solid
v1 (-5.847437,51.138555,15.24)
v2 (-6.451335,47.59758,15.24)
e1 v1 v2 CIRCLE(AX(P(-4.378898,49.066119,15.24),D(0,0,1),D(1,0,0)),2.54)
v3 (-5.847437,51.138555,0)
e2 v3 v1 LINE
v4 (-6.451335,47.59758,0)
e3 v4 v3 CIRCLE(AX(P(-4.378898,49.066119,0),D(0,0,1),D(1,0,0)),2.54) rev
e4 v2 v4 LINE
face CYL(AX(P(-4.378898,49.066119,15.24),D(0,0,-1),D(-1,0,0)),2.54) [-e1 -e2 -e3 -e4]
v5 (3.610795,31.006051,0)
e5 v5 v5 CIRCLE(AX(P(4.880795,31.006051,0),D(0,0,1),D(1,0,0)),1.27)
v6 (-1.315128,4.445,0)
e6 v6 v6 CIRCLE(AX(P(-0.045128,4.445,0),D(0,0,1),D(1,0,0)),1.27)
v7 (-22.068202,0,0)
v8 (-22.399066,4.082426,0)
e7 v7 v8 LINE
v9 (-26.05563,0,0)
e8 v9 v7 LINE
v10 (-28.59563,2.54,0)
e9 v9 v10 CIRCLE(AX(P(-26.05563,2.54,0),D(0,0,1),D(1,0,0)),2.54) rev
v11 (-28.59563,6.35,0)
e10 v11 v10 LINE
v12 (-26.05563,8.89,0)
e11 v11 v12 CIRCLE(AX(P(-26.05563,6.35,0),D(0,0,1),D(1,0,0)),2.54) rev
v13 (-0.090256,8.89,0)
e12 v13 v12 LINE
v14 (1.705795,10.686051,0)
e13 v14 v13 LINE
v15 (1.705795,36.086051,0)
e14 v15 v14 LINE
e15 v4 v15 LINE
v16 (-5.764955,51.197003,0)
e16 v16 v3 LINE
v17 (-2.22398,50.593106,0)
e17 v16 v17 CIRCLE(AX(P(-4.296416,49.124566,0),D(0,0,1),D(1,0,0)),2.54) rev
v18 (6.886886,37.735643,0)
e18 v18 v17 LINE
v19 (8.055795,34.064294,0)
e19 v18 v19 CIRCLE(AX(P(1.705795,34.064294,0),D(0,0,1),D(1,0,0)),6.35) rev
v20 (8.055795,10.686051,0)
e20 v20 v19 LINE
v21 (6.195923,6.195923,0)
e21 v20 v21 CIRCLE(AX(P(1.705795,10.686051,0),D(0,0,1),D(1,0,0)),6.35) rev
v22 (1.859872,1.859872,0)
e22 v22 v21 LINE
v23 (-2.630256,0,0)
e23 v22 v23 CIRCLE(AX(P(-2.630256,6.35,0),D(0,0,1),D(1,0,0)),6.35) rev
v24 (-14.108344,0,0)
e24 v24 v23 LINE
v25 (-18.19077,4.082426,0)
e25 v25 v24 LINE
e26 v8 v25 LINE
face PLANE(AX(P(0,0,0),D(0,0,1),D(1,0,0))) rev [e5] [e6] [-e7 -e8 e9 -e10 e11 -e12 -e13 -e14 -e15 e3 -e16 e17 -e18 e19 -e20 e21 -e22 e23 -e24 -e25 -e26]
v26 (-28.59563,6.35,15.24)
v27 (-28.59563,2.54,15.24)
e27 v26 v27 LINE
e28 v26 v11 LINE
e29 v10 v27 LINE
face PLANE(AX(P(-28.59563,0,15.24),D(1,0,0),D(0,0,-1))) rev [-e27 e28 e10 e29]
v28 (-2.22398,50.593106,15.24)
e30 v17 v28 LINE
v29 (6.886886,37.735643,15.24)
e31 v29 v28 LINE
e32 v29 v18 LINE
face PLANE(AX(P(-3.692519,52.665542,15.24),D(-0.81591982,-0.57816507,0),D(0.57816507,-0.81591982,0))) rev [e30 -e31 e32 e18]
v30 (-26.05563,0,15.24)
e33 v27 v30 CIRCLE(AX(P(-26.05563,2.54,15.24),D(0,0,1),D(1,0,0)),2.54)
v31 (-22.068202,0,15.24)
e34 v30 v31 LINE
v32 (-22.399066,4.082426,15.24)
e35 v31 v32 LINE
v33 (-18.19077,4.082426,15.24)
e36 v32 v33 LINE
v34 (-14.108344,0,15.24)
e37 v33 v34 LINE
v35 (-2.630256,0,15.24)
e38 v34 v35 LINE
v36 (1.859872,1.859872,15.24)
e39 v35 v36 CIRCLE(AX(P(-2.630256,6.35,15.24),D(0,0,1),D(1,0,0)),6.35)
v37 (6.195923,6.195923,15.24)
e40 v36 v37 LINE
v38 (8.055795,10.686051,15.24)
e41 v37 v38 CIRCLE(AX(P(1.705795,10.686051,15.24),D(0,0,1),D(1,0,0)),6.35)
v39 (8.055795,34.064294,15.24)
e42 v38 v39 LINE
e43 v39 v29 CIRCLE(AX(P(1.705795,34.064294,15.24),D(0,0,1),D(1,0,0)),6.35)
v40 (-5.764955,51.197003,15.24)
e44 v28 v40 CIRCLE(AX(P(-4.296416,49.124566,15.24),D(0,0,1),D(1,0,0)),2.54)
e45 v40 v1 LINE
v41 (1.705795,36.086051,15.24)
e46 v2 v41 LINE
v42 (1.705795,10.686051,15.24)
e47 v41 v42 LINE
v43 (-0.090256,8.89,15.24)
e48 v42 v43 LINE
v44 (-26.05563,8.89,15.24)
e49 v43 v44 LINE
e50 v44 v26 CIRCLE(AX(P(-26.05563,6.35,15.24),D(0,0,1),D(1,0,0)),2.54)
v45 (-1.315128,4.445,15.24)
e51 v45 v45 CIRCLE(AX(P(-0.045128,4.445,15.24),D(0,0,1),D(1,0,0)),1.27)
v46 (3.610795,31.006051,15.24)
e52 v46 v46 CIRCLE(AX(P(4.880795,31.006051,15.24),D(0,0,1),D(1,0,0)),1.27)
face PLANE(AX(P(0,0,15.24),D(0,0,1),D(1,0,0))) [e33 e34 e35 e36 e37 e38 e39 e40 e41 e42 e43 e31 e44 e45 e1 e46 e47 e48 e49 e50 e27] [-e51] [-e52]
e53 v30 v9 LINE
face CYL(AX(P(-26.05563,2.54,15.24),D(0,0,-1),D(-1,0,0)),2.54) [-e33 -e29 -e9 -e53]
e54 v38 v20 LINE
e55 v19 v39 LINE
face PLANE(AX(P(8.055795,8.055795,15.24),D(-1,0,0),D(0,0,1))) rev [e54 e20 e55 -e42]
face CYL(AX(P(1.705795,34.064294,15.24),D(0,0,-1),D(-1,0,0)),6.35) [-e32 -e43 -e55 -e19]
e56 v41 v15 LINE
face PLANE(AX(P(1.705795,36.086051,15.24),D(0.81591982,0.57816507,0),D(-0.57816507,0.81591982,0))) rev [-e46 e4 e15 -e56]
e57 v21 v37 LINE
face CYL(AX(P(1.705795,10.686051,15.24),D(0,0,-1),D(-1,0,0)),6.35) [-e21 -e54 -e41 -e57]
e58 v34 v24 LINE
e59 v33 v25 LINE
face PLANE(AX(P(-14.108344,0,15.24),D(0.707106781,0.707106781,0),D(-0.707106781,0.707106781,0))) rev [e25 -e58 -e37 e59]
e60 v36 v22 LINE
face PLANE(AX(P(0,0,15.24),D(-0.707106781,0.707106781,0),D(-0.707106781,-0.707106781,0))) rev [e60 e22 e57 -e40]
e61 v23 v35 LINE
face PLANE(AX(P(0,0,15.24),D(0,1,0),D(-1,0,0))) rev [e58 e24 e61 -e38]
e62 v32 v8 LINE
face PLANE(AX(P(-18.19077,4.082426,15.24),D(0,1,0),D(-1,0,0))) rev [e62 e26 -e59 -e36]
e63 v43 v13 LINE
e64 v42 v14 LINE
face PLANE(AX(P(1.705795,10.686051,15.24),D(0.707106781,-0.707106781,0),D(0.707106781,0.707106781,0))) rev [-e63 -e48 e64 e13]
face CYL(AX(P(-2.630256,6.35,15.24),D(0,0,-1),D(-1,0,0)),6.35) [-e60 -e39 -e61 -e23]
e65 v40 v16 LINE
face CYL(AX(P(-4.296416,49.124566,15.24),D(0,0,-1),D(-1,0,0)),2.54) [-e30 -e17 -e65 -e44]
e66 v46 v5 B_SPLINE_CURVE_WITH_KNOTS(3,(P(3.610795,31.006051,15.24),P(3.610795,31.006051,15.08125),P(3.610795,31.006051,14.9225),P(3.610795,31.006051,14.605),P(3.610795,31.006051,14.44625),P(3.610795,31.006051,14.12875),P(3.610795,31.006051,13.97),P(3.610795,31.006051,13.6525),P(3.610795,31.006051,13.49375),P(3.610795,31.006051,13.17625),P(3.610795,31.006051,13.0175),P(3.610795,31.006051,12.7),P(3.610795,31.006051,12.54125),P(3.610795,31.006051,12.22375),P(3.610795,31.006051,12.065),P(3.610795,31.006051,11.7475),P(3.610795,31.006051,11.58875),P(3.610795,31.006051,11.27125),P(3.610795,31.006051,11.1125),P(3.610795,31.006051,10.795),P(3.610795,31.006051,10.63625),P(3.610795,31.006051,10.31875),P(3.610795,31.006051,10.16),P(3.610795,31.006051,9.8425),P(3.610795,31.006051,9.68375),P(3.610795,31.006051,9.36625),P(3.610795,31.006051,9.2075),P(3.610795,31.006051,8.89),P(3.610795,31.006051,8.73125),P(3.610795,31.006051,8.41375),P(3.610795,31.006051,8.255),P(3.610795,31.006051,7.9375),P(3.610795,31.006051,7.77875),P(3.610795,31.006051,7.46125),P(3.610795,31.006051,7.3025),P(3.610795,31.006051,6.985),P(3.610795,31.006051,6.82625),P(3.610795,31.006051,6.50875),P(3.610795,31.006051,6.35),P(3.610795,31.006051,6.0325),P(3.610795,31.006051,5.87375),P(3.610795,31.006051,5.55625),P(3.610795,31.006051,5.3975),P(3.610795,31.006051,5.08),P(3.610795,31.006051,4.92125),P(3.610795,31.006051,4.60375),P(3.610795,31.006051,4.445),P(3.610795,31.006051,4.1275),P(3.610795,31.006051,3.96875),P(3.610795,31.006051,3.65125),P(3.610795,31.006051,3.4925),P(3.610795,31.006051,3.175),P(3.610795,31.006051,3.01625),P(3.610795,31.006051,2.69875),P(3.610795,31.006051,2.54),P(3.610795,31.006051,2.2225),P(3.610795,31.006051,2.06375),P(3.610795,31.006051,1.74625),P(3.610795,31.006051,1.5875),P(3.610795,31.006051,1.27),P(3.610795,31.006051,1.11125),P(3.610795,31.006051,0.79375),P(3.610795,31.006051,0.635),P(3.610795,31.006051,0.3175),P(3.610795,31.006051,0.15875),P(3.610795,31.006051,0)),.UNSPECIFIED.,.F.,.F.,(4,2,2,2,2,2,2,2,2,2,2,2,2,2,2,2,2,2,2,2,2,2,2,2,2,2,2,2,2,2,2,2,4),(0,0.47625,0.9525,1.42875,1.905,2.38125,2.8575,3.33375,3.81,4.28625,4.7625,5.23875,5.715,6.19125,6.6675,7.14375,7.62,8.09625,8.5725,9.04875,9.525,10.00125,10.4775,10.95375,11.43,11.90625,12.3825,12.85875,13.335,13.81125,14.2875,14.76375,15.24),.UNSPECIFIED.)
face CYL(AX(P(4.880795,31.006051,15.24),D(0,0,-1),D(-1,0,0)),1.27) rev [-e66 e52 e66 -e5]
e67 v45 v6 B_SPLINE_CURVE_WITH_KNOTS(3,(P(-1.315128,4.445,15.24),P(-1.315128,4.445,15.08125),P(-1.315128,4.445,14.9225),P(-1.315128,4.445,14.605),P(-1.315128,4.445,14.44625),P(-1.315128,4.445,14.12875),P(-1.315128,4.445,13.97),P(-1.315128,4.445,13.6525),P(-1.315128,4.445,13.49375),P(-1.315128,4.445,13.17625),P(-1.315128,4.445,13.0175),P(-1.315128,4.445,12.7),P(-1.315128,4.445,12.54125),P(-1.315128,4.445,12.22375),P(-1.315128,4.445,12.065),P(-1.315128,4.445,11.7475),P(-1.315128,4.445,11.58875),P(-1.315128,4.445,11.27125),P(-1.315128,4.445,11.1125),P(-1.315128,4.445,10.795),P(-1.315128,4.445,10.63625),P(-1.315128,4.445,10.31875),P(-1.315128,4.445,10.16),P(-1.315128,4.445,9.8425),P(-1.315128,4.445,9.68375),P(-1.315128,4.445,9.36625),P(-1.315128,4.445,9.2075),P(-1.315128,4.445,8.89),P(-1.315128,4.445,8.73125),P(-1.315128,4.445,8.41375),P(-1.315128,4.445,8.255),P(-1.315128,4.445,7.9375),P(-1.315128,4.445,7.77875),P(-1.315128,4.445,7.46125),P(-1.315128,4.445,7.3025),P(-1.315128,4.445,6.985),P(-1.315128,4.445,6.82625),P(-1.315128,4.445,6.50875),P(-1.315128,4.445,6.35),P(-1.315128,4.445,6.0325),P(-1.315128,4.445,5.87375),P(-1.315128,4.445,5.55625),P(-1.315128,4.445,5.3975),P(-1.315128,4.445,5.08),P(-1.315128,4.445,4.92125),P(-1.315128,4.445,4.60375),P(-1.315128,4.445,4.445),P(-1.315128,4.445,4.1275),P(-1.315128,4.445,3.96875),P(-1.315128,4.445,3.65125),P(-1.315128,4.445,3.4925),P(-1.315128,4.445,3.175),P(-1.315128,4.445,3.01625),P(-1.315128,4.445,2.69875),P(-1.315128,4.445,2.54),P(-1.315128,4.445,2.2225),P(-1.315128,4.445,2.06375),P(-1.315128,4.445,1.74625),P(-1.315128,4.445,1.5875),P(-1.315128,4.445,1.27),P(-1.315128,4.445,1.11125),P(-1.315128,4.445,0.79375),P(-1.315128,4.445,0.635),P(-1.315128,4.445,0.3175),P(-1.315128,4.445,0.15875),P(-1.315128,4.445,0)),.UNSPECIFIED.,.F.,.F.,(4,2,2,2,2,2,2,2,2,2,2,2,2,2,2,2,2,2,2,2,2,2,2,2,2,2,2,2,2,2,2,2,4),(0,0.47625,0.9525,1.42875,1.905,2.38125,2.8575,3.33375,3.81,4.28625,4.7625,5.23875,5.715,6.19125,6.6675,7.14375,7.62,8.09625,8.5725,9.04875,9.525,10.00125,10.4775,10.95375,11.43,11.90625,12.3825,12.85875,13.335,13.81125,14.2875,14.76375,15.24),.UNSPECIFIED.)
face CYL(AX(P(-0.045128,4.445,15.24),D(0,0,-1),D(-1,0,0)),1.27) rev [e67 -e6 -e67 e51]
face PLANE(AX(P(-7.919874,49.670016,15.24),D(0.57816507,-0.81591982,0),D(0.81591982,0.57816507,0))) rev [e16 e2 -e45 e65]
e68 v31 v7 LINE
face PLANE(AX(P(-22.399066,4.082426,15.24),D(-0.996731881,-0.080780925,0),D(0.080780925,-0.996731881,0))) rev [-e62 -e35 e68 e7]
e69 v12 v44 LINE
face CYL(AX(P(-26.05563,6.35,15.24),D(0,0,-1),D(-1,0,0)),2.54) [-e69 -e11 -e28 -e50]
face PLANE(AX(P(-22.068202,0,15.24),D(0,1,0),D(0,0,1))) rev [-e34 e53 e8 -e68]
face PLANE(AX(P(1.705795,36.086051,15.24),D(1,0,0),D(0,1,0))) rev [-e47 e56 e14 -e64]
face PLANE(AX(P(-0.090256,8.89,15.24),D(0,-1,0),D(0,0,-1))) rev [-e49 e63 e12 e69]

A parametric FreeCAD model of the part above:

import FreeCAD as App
import Part
import Sketcher
Q = App.Units.Quantity


def edges_at(feature, points):
    """Names of the edges that pass closest to the given points."""
    edges = feature.Shape.Edges
    near = lambda p: min(range(len(edges)), key=lambda i: edges[i].distToShape(Part.Vertex(*p))[0])
    return sorted({f"Edge{near(p) + 1}" for p in points})


def add_polygon(sketch, points):
    """Adds a closed chain of lines whose ends are joined by coincident constraints."""
    first, n = sketch.GeometryCount, len(points)
    for a, b in zip(points, points[1:] + points[:1]):
        sketch.addGeometry(Part.LineSegment(App.Vector(*a, 0), App.Vector(*b, 0)), False)
    for i in range(n):
        sketch.addConstraint(Sketcher.Constraint("Coincident", first + i, 2, first + (i + 1) % n, 1))

doc = App.newDocument("Part")
params = doc.addObject("Spreadsheet::Sheet", "Params")
for row, (alias, value) in enumerate([
    ("sketch1_diameter", "0.1 in"),
    ("sketch1_height", "1 in"),
    ("sketch1_length", "0.8 in"),
    ("sketch1_length2", "0.1 in"),
    ("sketch1_height2", "0.35 in"),
    ("pad1_length", "0.6 in"),
    ("fillet_radius", "0.25 in"),
    ("fillet2_radius", "0.1 in"),
], start=1):
    params.set(f"A{row}", alias)
    params.set(f"B{row}", "=" + value)
    params.setAlias(f"B{row}", alias)

body = doc.addObject("PartDesign::Body", "Body")

# Sketch on XY plane
sketch1 = doc.addObject("Sketcher::SketchObject", "Sketch")
body.addObject(sketch1)
sketch1.AttachmentSupport = (doc.XY_Plane, [""])
sketch1.MapMode = "FlatFace"
add_polygon(sketch1, [(-14.1, 0), (0, 0), (8.1, 8.1), (8.1, 36.1), (-3.7, 52.7), (-7.9, 49.7), (1.7, 36.1), (1.7, 10.7), (-0.1, 8.9), (-28.6, 8.9), (-28.6, 0), (-22.1, 0), (-22.4, 4.1), (-18.2, 4.1)])  # lines 0-13
sketch1.addGeometry(Part.Circle(App.Vector(0, 4.4, 0), App.Vector(0, 0, 1), 1.3), False)  # 14
sketch1.addGeometry(Part.Circle(App.Vector(4.9, 31, 0), App.Vector(0, 0, 1), 1.3), False)  # 15
sketch1.addConstraint([
    Sketcher.Constraint("Horizontal", 0),
    Sketcher.Constraint("Vertical", 2),
    Sketcher.Constraint("Vertical", 6),
    Sketcher.Constraint("Horizontal", 8),
    Sketcher.Constraint("Vertical", 9),
    Sketcher.Constraint("Horizontal", 10),
    Sketcher.Constraint("Horizontal", 12),
    Sketcher.Constraint("Coincident", 0, 2, -1, 1),
    Sketcher.Constraint("Equal", 14, 15),
    Sketcher.Constraint("PointOnObject", 9, 2, -1),
    Sketcher.Constraint("Perpendicular", 3, 4),
    Sketcher.Constraint("Perpendicular", 4, 5),
    Sketcher.Constraint("Parallel", 1, 7),
    Sketcher.Constraint("Perpendicular", 7, 13),
    Sketcher.Constraint("Horizontal", 2, 2, 5, 2),
    Sketcher.Constraint("Diameter", 14, Q("0.1 in")),
    Sketcher.Constraint("DistanceY", 6, 2, 6, 1, Q("1 in")),
    Sketcher.Constraint("Angle", 1, Q("45 deg")),
    Sketcher.Constraint("Distance", 3, Q("0.8 in")),
    Sketcher.Constraint("Distance", 7, Q("0.1 in")),
    Sketcher.Constraint("DistanceY", 9, 2, 9, 1, Q("0.35 in")),
    Sketcher.Constraint("DistanceY", 15, 3, 2, 2, Q("0.2 in")),
    Sketcher.Constraint("DistanceX", 5, 2, 2, 2, Q("0.25 in")),
    Sketcher.Constraint("DistanceY", -1, 1, 14, 3, Q("0.175 in")),
    Sketcher.Constraint("DistanceX", 15, 3, 1, 2, Q("0.125 in")),
    Sketcher.Constraint("Distance", 13, Q("0.2273001 in")),
    Sketcher.Constraint("DistanceX", 10, 1, 10, 2, Q("6.527428 mm")),
    Sketcher.Constraint("Distance", 4, Q("5.181091 mm")),
    Sketcher.Constraint("Distance", 11, Q("4.095812 mm")),
    Sketcher.Constraint("DistanceX", 0, 1, 0, 2, Q("14.108344 mm")),
    Sketcher.Constraint("DistanceX", 8, 2, 8, 1, Q("28.505374 mm")),
    Sketcher.Constraint("DistanceX", 12, 1, 12, 2, Q("4.208296 mm")),
    Sketcher.Constraint("DistanceX", 14, 3, -1, 1, Q("0.045128 mm")),
])
sketch1.setExpression("Constraints[29]", "Params.sketch1_diameter")
sketch1.setExpression("Constraints[30]", "Params.sketch1_height")
sketch1.setExpression("Constraints[32]", "Params.sketch1_length")
sketch1.setExpression("Constraints[33]", "Params.sketch1_length2")
sketch1.setExpression("Constraints[34]", "Params.sketch1_height2")
pad1 = doc.addObject("PartDesign::Pad", "Pad")
body.addObject(pad1)
pad1.Profile = sketch1
pad1.setExpression("Length", "Params.pad1_length")
doc.recompute()

fillet = doc.addObject("PartDesign::Fillet", "Fillet")
body.addObject(fillet)
fillet.Base = (pad1, edges_at(pad1, [(0, 0, 7.62), (8.056, 36.086, 7.62), (8.056, 8.056, 7.62)]))
fillet.setExpression("Radius", "Params.fillet_radius")
doc.recompute()

fillet2 = doc.addObject("PartDesign::Fillet", "Fillet001")
body.addObject(fillet2)
fillet2.Base = (fillet, edges_at(fillet, [
    (-28.596, 0, 7.62),
    (-28.596, 8.89, 7.62),
    (-7.92, 49.67, 7.62),
    (-3.693, 52.666, 7.62),
]))
fillet2.setExpression("Radius", "Params.fillet2_radius")

doc.recompute()
